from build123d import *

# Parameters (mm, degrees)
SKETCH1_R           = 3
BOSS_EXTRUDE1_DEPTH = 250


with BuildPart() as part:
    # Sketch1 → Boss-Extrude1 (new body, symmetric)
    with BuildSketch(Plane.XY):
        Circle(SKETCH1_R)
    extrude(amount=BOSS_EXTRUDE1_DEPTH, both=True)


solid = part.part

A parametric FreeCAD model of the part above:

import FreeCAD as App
import Part
import Sketcher

V = App.Vector

doc = App.newDocument("Part")
body = doc.addObject("PartDesign::Body", "Body")

sketch1 = doc.addObject("Sketcher::SketchObject", "Sketch")
body.addObject(sketch1)
sketch1.AttachmentSupport = (doc.XY_Plane, [""])
sketch1.MapMode = "FlatFace"
sketch1.addGeometry(Part.Circle(V(0, 0, 0), V(0, 0, 1), 3), False)
sketch1.addConstraint([
    Sketcher.Constraint("Coincident", 0, 3, -1, 1),
    Sketcher.Constraint("Diameter", 0, 6.0),
])
pad1 = doc.addObject("PartDesign::Pad", "Pad")
body.addObject(pad1)
pad1.Profile = sketch1
pad1.Length = 500
pad1.Midplane = True

doc.recompute()
